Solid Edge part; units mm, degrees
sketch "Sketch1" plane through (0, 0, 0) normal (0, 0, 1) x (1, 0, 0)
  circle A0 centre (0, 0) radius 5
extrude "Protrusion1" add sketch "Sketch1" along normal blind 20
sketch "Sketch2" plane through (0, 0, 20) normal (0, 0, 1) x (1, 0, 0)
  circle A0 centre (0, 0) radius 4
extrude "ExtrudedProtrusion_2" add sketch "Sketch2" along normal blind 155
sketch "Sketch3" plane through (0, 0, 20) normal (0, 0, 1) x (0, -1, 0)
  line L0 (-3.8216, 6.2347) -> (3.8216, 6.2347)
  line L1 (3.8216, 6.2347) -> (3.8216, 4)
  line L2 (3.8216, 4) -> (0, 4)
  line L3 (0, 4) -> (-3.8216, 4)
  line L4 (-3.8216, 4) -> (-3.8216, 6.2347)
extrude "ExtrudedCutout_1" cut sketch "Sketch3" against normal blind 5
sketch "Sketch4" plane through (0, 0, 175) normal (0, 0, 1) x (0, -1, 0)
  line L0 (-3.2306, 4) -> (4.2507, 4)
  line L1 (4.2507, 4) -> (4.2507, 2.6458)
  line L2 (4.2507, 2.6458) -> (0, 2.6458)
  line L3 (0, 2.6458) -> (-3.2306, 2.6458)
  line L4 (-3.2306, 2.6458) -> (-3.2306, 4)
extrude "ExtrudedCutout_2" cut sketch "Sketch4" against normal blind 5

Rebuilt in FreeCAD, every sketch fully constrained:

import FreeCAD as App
import Part
import Sketcher
from FreeCAD import Vector
Q = App.Units.Quantity

doc = App.newDocument("Part")
params = doc.addObject("Spreadsheet::Sheet", "Params")
for row, (alias, value) in enumerate([
    ("sketch1_diameter", "10 mm"),
    ("pad1_length", "20 mm"),
    ("sketch2_diameter", "8 mm"),
    ("pad2_length", "155 mm"),
    ("pocket1_length", "5 mm"),
    ("pocket2_length", "5 mm"),
], start=1):
    params.set(f"A{row}", alias)
    params.set(f"B{row}", "=" + value)
    params.setAlias(f"B{row}", alias)

body = doc.addObject("PartDesign::Body", "Body")

# Sketch on XY plane
sketch1 = body.newObject("Sketcher::SketchObject", "Sketch")
sketch1.AttachmentSupport = (doc.getObject("XY_Plane"), [""])
sketch1.MapMode = "FlatFace"
sketch1.addGeometry(Part.Circle(Vector(0, 0, 0), Vector(0, 0, 1), 5), False)
sketch1.addConstraint(Sketcher.Constraint("Coincident", 0, 3, -1, 1))
sketch1.addConstraint(Sketcher.Constraint("Diameter", 0, Q("10 mm")))
sketch1.setExpression("Constraints[1]", "Params.sketch1_diameter")
pad1 = body.newObject("PartDesign::Pad", "Pad")
pad1.Profile = sketch1
pad1.setExpression("Length", "Params.pad1_length")

# Sketch on XY plane
sketch2 = body.newObject("Sketcher::SketchObject", "Sketch001")
sketch2.AttachmentSupport = (doc.getObject("XY_Plane"), [""])
sketch2.MapMode = "FlatFace"
sketch2.AttachmentOffset = App.Placement(Vector(0, 0, 20), App.Rotation())
sketch2.addGeometry(Part.Circle(Vector(0, 0, 0), Vector(0, 0, 1), 4), False)
sketch2.addConstraint(Sketcher.Constraint("Coincident", 0, 3, -1, 1))
sketch2.addConstraint(Sketcher.Constraint("Diameter", 0, Q("8 mm")))
sketch2.setExpression("Constraints[1]", "Params.sketch2_diameter")
pad2 = body.newObject("PartDesign::Pad", "Pad001")
pad2.Profile = sketch2
pad2.setExpression("Length", "Params.pad2_length")

# Sketch on XY plane
sketch3 = body.newObject("Sketcher::SketchObject", "Sketch002")
sketch3.AttachmentSupport = (doc.getObject("XY_Plane"), [""])
sketch3.MapMode = "FlatFace"
sketch3.AttachmentOffset = App.Placement(Vector(0, 0, 20), App.Rotation())
sketch3.addGeometry(Part.LineSegment(Vector(6.2, -3.8, 0), Vector(6.2, 3.8, 0)), False)
sketch3.addGeometry(Part.LineSegment(Vector(6.2, 3.8, 0), Vector(4, 3.8, 0)), False)
sketch3.addGeometry(Part.LineSegment(Vector(4, 3.8, 0), Vector(4, -3.8, 0)), False)
sketch3.addGeometry(Part.LineSegment(Vector(4, -3.8, 0), Vector(6.2, -3.8, 0)), False)
sketch3.addConstraint(Sketcher.Constraint("Coincident", 0, 2, 1, 1))
sketch3.addConstraint(Sketcher.Constraint("Coincident", 1, 2, 2, 1))
sketch3.addConstraint(Sketcher.Constraint("Coincident", 2, 2, 3, 1))
sketch3.addConstraint(Sketcher.Constraint("Coincident", 3, 2, 0, 1))
sketch3.addConstraint(Sketcher.Constraint("Vertical", 0))
sketch3.addConstraint(Sketcher.Constraint("Horizontal", 1))
sketch3.addConstraint(Sketcher.Constraint("Vertical", 2))
sketch3.addConstraint(Sketcher.Constraint("Horizontal", 3))
sketch3.addConstraint(Sketcher.Constraint("DistanceX", -1, 1, 1, 2, Q("4 mm")))
sketch3.addConstraint(Sketcher.Constraint("DistanceX", 1, 2, 1, 1, Q("2.2347 mm")))
sketch3.addConstraint(Sketcher.Constraint("DistanceY", 0, 1, 0, 2, Q("7.6432 mm")))
sketch3.addConstraint(Sketcher.Constraint("DistanceY", -1, 1, 0, 2, Q("3.8216 mm")))
pocket1 = body.newObject("PartDesign::Pocket", "Pocket")
pocket1.Profile = sketch3
pocket1.setExpression("Length", "Params.pocket1_length")

# Sketch on XY plane
sketch4 = body.newObject("Sketcher::SketchObject", "Sketch003")
sketch4.AttachmentSupport = (doc.getObject("XY_Plane"), [""])
sketch4.MapMode = "FlatFace"
sketch4.AttachmentOffset = App.Placement(Vector(0, 0, 175), App.Rotation())
sketch4.addGeometry(Part.LineSegment(Vector(4, -4.3, 0), Vector(4, 3.2, 0)), False)
sketch4.addGeometry(Part.LineSegment(Vector(4, 3.2, 0), Vector(2.6, 3.2, 0)), False)
sketch4.addGeometry(Part.LineSegment(Vector(2.6, 3.2, 0), Vector(2.6, -4.3, 0)), False)
sketch4.addGeometry(Part.LineSegment(Vector(2.6, -4.3, 0), Vector(4, -4.3, 0)), False)
sketch4.addConstraint(Sketcher.Constraint("Coincident", 0, 2, 1, 1))
sketch4.addConstraint(Sketcher.Constraint("Coincident", 1, 2, 2, 1))
sketch4.addConstraint(Sketcher.Constraint("Coincident", 2, 2, 3, 1))
sketch4.addConstraint(Sketcher.Constraint("Coincident", 3, 2, 0, 1))
sketch4.addConstraint(Sketcher.Constraint("Vertical", 0))
sketch4.addConstraint(Sketcher.Constraint("Horizontal", 1))
sketch4.addConstraint(Sketcher.Constraint("Vertical", 2))
sketch4.addConstraint(Sketcher.Constraint("Horizontal", 3))
sketch4.addConstraint(Sketcher.Constraint("DistanceX", -1, 1, 0, 2, Q("4 mm")))
sketch4.addConstraint(Sketcher.Constraint("DistanceX", 1, 2, 1, 1, Q("1.3542 mm")))
sketch4.addConstraint(Sketcher.Constraint("DistanceY", 0, 1, 0, 2, Q("7.4813 mm")))
sketch4.addConstraint(Sketcher.Constraint("DistanceY", -1, 1, 0, 2, Q("3.2306 mm")))
pocket2 = body.newObject("PartDesign::Pocket", "Pocket001")
pocket2.Profile = sketch4
pocket2.setExpression("Length", "Params.pocket2_length")

doc.recompute()
